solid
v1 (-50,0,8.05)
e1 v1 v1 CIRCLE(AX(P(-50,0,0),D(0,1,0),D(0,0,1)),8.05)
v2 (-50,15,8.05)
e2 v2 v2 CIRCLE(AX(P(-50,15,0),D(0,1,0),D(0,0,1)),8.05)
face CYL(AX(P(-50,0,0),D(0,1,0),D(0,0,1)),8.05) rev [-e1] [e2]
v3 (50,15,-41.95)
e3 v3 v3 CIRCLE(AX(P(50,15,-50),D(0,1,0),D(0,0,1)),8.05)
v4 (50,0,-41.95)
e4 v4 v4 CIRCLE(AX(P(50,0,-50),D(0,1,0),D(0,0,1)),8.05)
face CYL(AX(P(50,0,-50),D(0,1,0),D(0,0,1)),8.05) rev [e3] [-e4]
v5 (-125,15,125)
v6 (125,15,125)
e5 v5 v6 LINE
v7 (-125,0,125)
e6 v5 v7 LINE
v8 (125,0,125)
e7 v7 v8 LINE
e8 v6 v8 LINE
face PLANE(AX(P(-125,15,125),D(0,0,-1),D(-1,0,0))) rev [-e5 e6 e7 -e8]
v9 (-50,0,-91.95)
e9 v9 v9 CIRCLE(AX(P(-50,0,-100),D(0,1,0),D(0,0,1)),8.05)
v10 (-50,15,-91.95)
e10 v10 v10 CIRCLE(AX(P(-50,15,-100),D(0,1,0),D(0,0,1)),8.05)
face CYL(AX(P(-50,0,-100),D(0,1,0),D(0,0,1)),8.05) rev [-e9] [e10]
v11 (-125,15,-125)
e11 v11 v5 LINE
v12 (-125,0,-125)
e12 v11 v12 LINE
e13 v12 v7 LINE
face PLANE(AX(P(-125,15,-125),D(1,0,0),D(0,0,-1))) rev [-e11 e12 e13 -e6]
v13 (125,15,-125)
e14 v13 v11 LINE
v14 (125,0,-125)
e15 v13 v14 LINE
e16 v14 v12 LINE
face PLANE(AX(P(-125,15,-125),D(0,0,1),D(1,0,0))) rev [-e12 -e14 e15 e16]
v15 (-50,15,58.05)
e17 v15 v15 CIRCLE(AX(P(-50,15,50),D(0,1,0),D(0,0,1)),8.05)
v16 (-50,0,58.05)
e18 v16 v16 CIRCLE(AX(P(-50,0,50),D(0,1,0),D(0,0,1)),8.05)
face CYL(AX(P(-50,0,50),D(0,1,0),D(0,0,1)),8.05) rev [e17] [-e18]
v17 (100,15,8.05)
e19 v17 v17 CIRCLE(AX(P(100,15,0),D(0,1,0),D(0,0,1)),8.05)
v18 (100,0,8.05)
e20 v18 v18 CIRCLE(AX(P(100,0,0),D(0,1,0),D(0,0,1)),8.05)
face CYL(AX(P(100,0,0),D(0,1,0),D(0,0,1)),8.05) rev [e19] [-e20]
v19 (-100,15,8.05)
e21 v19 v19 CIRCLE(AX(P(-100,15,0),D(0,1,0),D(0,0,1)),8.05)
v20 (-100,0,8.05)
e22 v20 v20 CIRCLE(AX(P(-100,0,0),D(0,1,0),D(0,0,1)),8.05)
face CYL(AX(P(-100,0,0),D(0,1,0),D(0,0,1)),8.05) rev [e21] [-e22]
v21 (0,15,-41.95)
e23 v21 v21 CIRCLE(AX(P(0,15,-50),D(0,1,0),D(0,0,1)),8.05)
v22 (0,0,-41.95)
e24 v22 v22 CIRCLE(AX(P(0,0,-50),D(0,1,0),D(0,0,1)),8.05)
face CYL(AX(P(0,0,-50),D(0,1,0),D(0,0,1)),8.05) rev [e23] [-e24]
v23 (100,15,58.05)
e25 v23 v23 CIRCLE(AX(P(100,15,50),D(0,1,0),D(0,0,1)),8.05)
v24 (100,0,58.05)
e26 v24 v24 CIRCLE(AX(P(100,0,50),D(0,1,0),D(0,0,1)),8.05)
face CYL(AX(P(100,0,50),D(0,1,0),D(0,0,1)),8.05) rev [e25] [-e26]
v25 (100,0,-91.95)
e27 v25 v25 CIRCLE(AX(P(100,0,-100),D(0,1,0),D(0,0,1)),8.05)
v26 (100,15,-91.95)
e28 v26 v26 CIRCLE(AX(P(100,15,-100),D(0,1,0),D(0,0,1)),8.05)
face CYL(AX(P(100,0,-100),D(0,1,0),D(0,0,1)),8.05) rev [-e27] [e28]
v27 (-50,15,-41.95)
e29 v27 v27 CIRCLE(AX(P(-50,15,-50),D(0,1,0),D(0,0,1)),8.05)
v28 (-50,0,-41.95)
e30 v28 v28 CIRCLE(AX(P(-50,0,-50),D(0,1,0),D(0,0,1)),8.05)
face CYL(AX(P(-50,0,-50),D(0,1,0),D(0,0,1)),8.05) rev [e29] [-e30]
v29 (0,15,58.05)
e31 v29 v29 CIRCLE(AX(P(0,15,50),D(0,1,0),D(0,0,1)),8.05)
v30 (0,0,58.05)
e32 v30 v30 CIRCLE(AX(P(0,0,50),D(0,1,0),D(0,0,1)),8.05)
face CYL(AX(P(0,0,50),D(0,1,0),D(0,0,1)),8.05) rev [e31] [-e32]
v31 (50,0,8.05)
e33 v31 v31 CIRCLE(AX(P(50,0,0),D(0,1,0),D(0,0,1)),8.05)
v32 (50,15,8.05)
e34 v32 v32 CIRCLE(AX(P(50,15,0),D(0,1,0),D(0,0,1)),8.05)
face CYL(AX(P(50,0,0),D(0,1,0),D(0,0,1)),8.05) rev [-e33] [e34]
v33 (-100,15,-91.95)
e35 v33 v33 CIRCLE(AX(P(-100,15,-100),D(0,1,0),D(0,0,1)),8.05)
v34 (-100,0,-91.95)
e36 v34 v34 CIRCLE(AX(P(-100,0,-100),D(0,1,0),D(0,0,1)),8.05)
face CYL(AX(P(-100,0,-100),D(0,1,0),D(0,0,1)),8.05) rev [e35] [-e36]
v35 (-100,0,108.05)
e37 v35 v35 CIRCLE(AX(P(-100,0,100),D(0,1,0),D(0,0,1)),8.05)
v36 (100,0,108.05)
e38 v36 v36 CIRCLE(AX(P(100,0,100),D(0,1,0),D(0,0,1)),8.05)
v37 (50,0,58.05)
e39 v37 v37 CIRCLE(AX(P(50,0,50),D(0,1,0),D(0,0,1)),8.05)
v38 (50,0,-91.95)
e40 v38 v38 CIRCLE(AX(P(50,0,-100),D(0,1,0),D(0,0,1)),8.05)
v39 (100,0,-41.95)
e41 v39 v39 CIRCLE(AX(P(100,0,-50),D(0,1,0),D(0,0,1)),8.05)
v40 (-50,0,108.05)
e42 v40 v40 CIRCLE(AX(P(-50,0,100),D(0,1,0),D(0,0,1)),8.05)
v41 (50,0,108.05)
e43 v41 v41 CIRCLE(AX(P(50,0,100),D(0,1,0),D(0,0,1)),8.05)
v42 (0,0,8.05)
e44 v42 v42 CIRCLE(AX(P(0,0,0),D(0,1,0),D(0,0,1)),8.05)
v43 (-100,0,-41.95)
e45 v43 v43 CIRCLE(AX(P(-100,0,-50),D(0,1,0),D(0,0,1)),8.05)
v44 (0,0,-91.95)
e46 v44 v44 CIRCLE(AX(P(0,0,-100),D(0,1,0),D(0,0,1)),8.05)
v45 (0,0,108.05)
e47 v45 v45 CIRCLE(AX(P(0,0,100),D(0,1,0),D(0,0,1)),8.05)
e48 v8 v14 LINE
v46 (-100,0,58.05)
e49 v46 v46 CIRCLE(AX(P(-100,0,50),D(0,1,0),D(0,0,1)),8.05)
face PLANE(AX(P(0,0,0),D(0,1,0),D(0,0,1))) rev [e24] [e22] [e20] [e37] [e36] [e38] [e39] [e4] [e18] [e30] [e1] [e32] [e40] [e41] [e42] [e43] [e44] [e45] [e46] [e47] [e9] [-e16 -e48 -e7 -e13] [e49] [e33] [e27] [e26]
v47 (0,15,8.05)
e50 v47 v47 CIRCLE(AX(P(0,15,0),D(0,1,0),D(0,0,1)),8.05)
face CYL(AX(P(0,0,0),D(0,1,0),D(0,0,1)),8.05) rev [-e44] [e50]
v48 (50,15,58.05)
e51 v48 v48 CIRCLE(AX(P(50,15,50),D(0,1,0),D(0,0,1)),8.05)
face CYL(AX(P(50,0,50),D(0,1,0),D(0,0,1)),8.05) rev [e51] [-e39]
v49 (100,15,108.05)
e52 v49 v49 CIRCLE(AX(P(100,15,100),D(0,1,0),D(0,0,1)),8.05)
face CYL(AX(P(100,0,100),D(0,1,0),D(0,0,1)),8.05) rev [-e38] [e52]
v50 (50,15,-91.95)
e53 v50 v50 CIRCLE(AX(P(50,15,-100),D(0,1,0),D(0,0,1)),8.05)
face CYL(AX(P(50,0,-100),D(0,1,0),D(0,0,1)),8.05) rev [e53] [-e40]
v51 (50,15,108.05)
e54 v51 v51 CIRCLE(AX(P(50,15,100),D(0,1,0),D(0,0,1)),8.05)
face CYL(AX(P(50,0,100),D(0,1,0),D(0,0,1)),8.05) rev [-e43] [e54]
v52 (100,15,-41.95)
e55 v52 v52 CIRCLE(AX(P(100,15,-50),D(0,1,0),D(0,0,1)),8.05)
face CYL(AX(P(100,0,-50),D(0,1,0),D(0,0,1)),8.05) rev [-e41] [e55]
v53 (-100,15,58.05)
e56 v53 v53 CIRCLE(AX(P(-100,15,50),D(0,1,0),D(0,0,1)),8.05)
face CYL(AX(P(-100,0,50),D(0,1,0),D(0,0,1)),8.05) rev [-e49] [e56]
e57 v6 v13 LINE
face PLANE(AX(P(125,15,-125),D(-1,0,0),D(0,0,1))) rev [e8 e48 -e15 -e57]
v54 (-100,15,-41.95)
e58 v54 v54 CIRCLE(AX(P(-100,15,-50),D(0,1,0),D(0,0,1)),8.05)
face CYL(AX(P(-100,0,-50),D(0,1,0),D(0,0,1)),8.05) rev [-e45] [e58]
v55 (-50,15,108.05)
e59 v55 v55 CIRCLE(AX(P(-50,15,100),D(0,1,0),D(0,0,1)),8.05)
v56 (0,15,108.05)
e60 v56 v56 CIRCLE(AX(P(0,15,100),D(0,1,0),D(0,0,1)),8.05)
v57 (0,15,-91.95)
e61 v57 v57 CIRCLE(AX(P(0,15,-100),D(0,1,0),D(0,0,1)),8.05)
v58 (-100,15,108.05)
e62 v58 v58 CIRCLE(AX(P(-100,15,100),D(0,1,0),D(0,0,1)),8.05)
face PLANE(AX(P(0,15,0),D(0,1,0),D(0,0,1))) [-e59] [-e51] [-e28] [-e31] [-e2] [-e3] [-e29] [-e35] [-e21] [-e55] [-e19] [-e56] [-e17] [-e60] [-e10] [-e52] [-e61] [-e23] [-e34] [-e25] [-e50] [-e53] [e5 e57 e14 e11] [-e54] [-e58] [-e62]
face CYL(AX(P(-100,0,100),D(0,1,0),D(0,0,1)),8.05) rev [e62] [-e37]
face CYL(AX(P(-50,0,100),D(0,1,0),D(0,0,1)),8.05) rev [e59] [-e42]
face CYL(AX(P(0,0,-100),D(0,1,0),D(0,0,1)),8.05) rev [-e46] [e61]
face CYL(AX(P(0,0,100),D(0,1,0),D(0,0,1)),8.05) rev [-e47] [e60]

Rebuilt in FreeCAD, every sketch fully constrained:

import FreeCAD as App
import Part
import Sketcher
Q = App.Units.Quantity


def add_polygon(sketch, points):
    """Adds a closed chain of lines whose ends are joined by coincident constraints."""
    first, n = sketch.GeometryCount, len(points)
    for a, b in zip(points, points[1:] + points[:1]):
        sketch.addGeometry(Part.LineSegment(App.Vector(*a, 0), App.Vector(*b, 0)), False)
    for i in range(n):
        sketch.addConstraint(Sketcher.Constraint("Coincident", first + i, 2, first + (i + 1) % n, 1))

doc = App.newDocument("Part")
body = doc.addObject("PartDesign::Body", "Body")

sketch1 = body.newObject("Sketcher::SketchObject", "Sketch")
sketch1.AttachmentSupport = (doc.getObject("XZ_Plane"), [""])
sketch1.MapMode = "FlatFace"
add_polygon(sketch1, [(-125, -125), (-125, 125), (125, 125), (125, -125)])
sketch1.addConstraint(Sketcher.Constraint("Vertical", 0))
sketch1.addConstraint(Sketcher.Constraint("Horizontal", 1))
sketch1.addConstraint(Sketcher.Constraint("Vertical", 2))
sketch1.addConstraint(Sketcher.Constraint("Horizontal", 3))
sketch1.addConstraint(Sketcher.Constraint("Symmetric", 0, 2, 2, 2, -1, 1))
sketch1.addConstraint(Sketcher.Constraint("Equal", 3, 0))
sketch1.addConstraint(Sketcher.Constraint("DistanceX", 1, 1, 1, 2, Q("250 mm")))
pad1 = body.newObject("PartDesign::Pad", "Pad")
pad1.Profile = sketch1
pad1.Length = 15
pad1.Reversed = True

sketch2 = body.newObject("Sketcher::SketchObject", "Sketch001")
sketch2.AttachmentSupport = (doc.getObject("XZ_Plane"), [""])
sketch2.MapMode = "FlatFace"
sketch2.AttachmentOffset = App.Placement(App.Vector(0, 0, -15), App.Rotation())
sketch2.addGeometry(Part.Circle(App.Vector(-100, -100, 0), App.Vector(0, 0, 1), 8), False)
sketch2.addGeometry(Part.Circle(App.Vector(-50, -100, 0), App.Vector(0, 0, 1), 8), False)
sketch2.addGeometry(Part.Circle(App.Vector(0, -100, 0), App.Vector(0, 0, 1), 8), False)
sketch2.addGeometry(Part.Circle(App.Vector(50, -100, 0), App.Vector(0, 0, 1), 8), False)
sketch2.addGeometry(Part.Circle(App.Vector(100, -100, 0), App.Vector(0, 0, 1), 8), False)
sketch2.addGeometry(Part.Circle(App.Vector(-50, -50, 0), App.Vector(0, 0, 1), 8), False)
sketch2.addGeometry(Part.Circle(App.Vector(0, -50, 0), App.Vector(0, 0, 1), 8), False)
sketch2.addGeometry(Part.Circle(App.Vector(50, -50, 0), App.Vector(0, 0, 1), 8), False)
sketch2.addGeometry(Part.Circle(App.Vector(100, -50, 0), App.Vector(0, 0, 1), 8), False)
sketch2.addGeometry(Part.Circle(App.Vector(-50, 0, 0), App.Vector(0, 0, 1), 8), False)
sketch2.addGeometry(Part.Circle(App.Vector(0, 0, 0), App.Vector(0, 0, 1), 8), False)
sketch2.addGeometry(Part.Circle(App.Vector(50, 0, 0), App.Vector(0, 0, 1), 8), False)
sketch2.addGeometry(Part.Circle(App.Vector(100, 0, 0), App.Vector(0, 0, 1), 8), False)
sketch2.addGeometry(Part.Circle(App.Vector(-50, 50, 0), App.Vector(0, 0, 1), 8), False)
sketch2.addGeometry(Part.Circle(App.Vector(0, 50, 0), App.Vector(0, 0, 1), 8), False)
sketch2.addGeometry(Part.Circle(App.Vector(50, 50, 0), App.Vector(0, 0, 1), 8), False)
sketch2.addGeometry(Part.Circle(App.Vector(100, 50, 0), App.Vector(0, 0, 1), 8), False)
sketch2.addGeometry(Part.Circle(App.Vector(-50, 100, 0), App.Vector(0, 0, 1), 8), False)
sketch2.addGeometry(Part.Circle(App.Vector(0, 100, 0), App.Vector(0, 0, 1), 8), False)
sketch2.addGeometry(Part.Circle(App.Vector(50, 100, 0), App.Vector(0, 0, 1), 8), False)
sketch2.addGeometry(Part.Circle(App.Vector(100, 100, 0), App.Vector(0, 0, 1), 8), False)
sketch2.addGeometry(Part.Circle(App.Vector(-100, -50, 0), App.Vector(0, 0, 1), 8), False)
sketch2.addGeometry(Part.Circle(App.Vector(-100, 0, 0), App.Vector(0, 0, 1), 8), False)
sketch2.addGeometry(Part.Circle(App.Vector(-100, 50, 0), App.Vector(0, 0, 1), 8), False)
sketch2.addGeometry(Part.Circle(App.Vector(-100, 100, 0), App.Vector(0, 0, 1), 8), False)
sketch2.addConstraint(Sketcher.Constraint("Coincident", 10, 3, -1, 1))
sketch2.addConstraint(Sketcher.Constraint("Equal", 0, 1))
sketch2.addConstraint(Sketcher.Constraint("Equal", 1, 2))
sketch2.addConstraint(Sketcher.Constraint("Equal", 2, 3))
sketch2.addConstraint(Sketcher.Constraint("Equal", 3, 4))
sketch2.addConstraint(Sketcher.Constraint("Equal", 4, 5))
sketch2.addConstraint(Sketcher.Constraint("Equal", 5, 6))
sketch2.addConstraint(Sketcher.Constraint("Equal", 6, 7))
sketch2.addConstraint(Sketcher.Constraint("Equal", 7, 8))
sketch2.addConstraint(Sketcher.Constraint("Equal", 8, 9))
sketch2.addConstraint(Sketcher.Constraint("Equal", 9, 10))
sketch2.addConstraint(Sketcher.Constraint("Equal", 10, 11))
sketch2.addConstraint(Sketcher.Constraint("Equal", 11, 12))
sketch2.addConstraint(Sketcher.Constraint("Equal", 12, 13))
sketch2.addConstraint(Sketcher.Constraint("Equal", 13, 14))
sketch2.addConstraint(Sketcher.Constraint("Equal", 14, 15))
sketch2.addConstraint(Sketcher.Constraint("Equal", 15, 16))
sketch2.addConstraint(Sketcher.Constraint("Equal", 16, 17))
sketch2.addConstraint(Sketcher.Constraint("Equal", 17, 18))
sketch2.addConstraint(Sketcher.Constraint("Equal", 18, 19))
sketch2.addConstraint(Sketcher.Constraint("Equal", 19, 20))
sketch2.addConstraint(Sketcher.Constraint("Equal", 20, 21))
sketch2.addConstraint(Sketcher.Constraint("Equal", 21, 22))
sketch2.addConstraint(Sketcher.Constraint("Equal", 22, 23))
sketch2.addConstraint(Sketcher.Constraint("Equal", 23, 24))
sketch2.addConstraint(Sketcher.Constraint("Symmetric", 9, 3, 11, 3, -1, 1))
sketch2.addConstraint(Sketcher.Constraint("Symmetric", 7, 3, 13, 3, -1, 1))
sketch2.addConstraint(Sketcher.Constraint("Symmetric", 6, 3, 14, 3, -1, 1))
sketch2.addConstraint(Sketcher.Constraint("Symmetric", 5, 3, 15, 3, -1, 1))
sketch2.addConstraint(Sketcher.Constraint("Symmetric", 3, 3, 17, 3, -1, 1))
sketch2.addConstraint(Sketcher.Constraint("Symmetric", 2, 3, 18, 3, -1, 1))
sketch2.addConstraint(Sketcher.Constraint("Symmetric", 1, 3, 19, 3, -1, 1))
sketch2.addConstraint(Sketcher.Constraint("Symmetric", 0, 3, 20, 3, -1, 1))
sketch2.addConstraint(Sketcher.Constraint("Symmetric", 16, 3, 21, 3, -1, 1))
sketch2.addConstraint(Sketcher.Constraint("Symmetric", 12, 3, 22, 3, -1, 1))
sketch2.addConstraint(Sketcher.Constraint("Symmetric", 8, 3, 23, 3, -1, 1))
sketch2.addConstraint(Sketcher.Constraint("Symmetric", 4, 3, 24, 3, -1, 1))
sketch2.addConstraint(Sketcher.Constraint("Symmetric", 1, 3, 3, 3, -2))
sketch2.addConstraint(Sketcher.Constraint("Symmetric", 0, 3, 4, 3, -2))
sketch2.addConstraint(Sketcher.Constraint("Symmetric", 5, 3, 7, 3, -2))
sketch2.addConstraint(Sketcher.Constraint("Symmetric", 8, 3, 21, 3, -2))
sketch2.addConstraint(Sketcher.Constraint("PointOnObject", 2, 3, -2))
sketch2.addConstraint(Sketcher.Constraint("PointOnObject", 6, 3, -2))
sketch2.addConstraint(Sketcher.Constraint("PointOnObject", 9, 3, -1))
sketch2.addConstraint(Sketcher.Constraint("PointOnObject", 12, 3, -1))
sketch2.addConstraint(Sketcher.Constraint("Horizontal", 0, 3, 1, 3))
sketch2.addConstraint(Sketcher.Constraint("Horizontal", 1, 3, 2, 3))
sketch2.addConstraint(Sketcher.Constraint("Horizontal", 5, 3, 6, 3))
sketch2.addConstraint(Sketcher.Constraint("Horizontal", 7, 3, 8, 3))
sketch2.addConstraint(Sketcher.Constraint("Vertical", 1, 3, 5, 3))
sketch2.addConstraint(Sketcher.Constraint("Vertical", 4, 3, 8, 3))
sketch2.addConstraint(Sketcher.Constraint("Vertical", 5, 3, 9, 3))
sketch2.addConstraint(Sketcher.Constraint("Vertical", 8, 3, 12, 3))
sketch2.addConstraint(Sketcher.Constraint("Diameter", 0, Q("16.1 mm")))
sketch2.addConstraint(Sketcher.Constraint("DistanceX", 0, 3, -1, 1, Q("100 mm")))
sketch2.addConstraint(Sketcher.Constraint("DistanceY", 0, 3, -1, 1, Q("100 mm")))
sketch2.addConstraint(Sketcher.Constraint("DistanceX", 1, 3, -1, 1, Q("50 mm")))
sketch2.addConstraint(Sketcher.Constraint("DistanceY", 5, 3, -1, 1, Q("50 mm")))
pocket1 = body.newObject("PartDesign::Pocket", "Pocket")
pocket1.Profile = sketch2
pocket1.Type = "ThroughAll"
pocket1.Reversed = True

doc.recompute()
